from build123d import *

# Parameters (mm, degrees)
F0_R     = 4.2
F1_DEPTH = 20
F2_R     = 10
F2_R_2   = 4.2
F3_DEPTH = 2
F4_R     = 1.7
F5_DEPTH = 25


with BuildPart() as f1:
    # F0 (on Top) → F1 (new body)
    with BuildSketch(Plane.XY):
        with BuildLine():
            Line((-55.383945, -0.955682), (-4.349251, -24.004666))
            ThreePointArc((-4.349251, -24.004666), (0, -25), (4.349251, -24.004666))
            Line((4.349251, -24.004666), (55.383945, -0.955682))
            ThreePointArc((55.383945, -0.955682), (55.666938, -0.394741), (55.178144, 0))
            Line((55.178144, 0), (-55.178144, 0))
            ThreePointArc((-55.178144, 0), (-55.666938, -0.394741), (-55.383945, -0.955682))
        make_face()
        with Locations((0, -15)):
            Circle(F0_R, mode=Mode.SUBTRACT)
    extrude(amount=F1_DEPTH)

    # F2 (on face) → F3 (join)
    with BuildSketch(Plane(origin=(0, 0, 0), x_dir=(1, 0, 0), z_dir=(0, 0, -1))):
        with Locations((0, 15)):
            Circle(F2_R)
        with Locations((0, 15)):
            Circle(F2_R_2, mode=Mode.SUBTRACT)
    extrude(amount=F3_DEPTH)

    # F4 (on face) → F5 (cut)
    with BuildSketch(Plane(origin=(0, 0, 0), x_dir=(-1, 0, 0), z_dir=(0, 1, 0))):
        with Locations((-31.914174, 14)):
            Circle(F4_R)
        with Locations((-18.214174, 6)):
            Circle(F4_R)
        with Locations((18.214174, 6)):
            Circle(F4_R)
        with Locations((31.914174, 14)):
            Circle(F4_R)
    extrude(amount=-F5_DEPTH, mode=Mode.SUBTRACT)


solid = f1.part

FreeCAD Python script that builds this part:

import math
import FreeCAD as App
import Part
import Sketcher
Q = App.Units.Quantity

doc = App.newDocument("Part")
body = doc.addObject("PartDesign::Body", "Body")

# Sketch on XY plane
sketch1 = body.newObject("Sketcher::SketchObject", "Sketch")
sketch1.AttachmentSupport = (doc.getObject("XY_Plane"), [""])
sketch1.MapMode = "FlatFace"
sketch1.addGeometry(Part.LineSegment(App.Vector(-55.4, -1, 0), App.Vector(-4.3, -24, 0)), False)
sketch1.addGeometry(Part.ArcOfCircle(Part.Circle(App.Vector(0, -15, 0), App.Vector(0, 0, 1), 10), math.radians(-116), math.radians(-64)), False)
sketch1.addGeometry(Part.LineSegment(App.Vector(4.3, -24, 0), App.Vector(55.4, -1, 0)), False)
sketch1.addGeometry(Part.ArcOfCircle(Part.Circle(App.Vector(55.2, -0.5, 0), App.Vector(0, 0, 1), 0.5), math.radians(-66), math.radians(90)), False)
sketch1.addGeometry(Part.LineSegment(App.Vector(55.2, 0, 0), App.Vector(-55.2, 0, 0)), False)
sketch1.addGeometry(Part.ArcOfCircle(Part.Circle(App.Vector(-55.2, -0.5, 0), App.Vector(0, 0, 1), 0.5), math.radians(90), math.radians(246)), False)
sketch1.addGeometry(Part.Circle(App.Vector(0, -15, 0), App.Vector(0, 0, 1), 4.2), False)
sketch1.addConstraint(Sketcher.Constraint("Coincident", 0, 2, 1, 1))
sketch1.addConstraint(Sketcher.Constraint("Coincident", 1, 2, 2, 1))
sketch1.addConstraint(Sketcher.Constraint("Coincident", 2, 2, 3, 1))
sketch1.addConstraint(Sketcher.Constraint("Coincident", 3, 2, 4, 1))
sketch1.addConstraint(Sketcher.Constraint("Coincident", 4, 2, 5, 1))
sketch1.addConstraint(Sketcher.Constraint("Coincident", 5, 2, 0, 1))
sketch1.addConstraint(Sketcher.Constraint("Horizontal", 4))
sketch1.addConstraint(Sketcher.Constraint("Coincident", 6, 3, 1, 3))
sketch1.addConstraint(Sketcher.Constraint("Equal", 3, 5))
sketch1.addConstraint(Sketcher.Constraint("Symmetric", 3, 2, 4, 2, -1, 1))
sketch1.addConstraint(Sketcher.Constraint("Symmetric", 0, 2, 1, 2, -2))
sketch1.addConstraint(Sketcher.Constraint("Symmetric", 2, 2, 5, 2, -2))
sketch1.addConstraint(Sketcher.Constraint("Vertical", 5, 3, 4, 2))
sketch1.addConstraint(Sketcher.Constraint("Diameter", 6, Q("8.4 mm")))
sketch1.addConstraint(Sketcher.Constraint("Radius", 3, Q("0.5 mm")))
sketch1.addConstraint(Sketcher.Constraint("DistanceY", 6, 3, -1, 1, Q("15 mm")))
sketch1.addConstraint(Sketcher.Constraint("Radius", 1, Q("9.999997 mm")))
sketch1.addConstraint(Sketcher.Constraint("DistanceX", 4, 2, 4, 1, Q("110.356288 mm")))
sketch1.addConstraint(Sketcher.Constraint("DistanceX", 0, 2, 1, 2, Q("8.698502 mm")))
sketch1.addConstraint(Sketcher.Constraint("DistanceX", 3, 2, 2, 2, Q("0.205801 mm")))
pad1 = body.newObject("PartDesign::Pad", "Pad")
pad1.Profile = sketch1
pad1.Length = 20

# Sketch on XY plane
sketch2 = body.newObject("Sketcher::SketchObject", "Sketch001")
sketch2.AttachmentSupport = (doc.getObject("XY_Plane"), [""])
sketch2.MapMode = "FlatFace"
sketch2.addGeometry(Part.Circle(App.Vector(0, -15, 0), App.Vector(0, 0, 1), 10), False)
sketch2.addGeometry(Part.Circle(App.Vector(0, -15, 0), App.Vector(0, 0, 1), 4.2), False)
sketch2.addConstraint(Sketcher.Constraint("Coincident", 1, 3, 0, 3))
sketch2.addConstraint(Sketcher.Constraint("PointOnObject", 0, 3, -2))
sketch2.addConstraint(Sketcher.Constraint("Diameter", 0, Q("20 mm")))
sketch2.addConstraint(Sketcher.Constraint("Diameter", 1, Q("8.4 mm")))
sketch2.addConstraint(Sketcher.Constraint("DistanceY", 0, 3, -1, 1, Q("15 mm")))
pad2 = body.newObject("PartDesign::Pad", "Pad001")
pad2.Profile = sketch2
pad2.Length = 2
pad2.Reversed = True

# Sketch on XZ plane
sketch3 = body.newObject("Sketcher::SketchObject", "Sketch002")
sketch3.AttachmentSupport = (doc.getObject("XZ_Plane"), [""])
sketch3.MapMode = "FlatFace"
sketch3.addGeometry(Part.Circle(App.Vector(31.9, 14, 0), App.Vector(0, 0, 1), 1.7), False)
sketch3.addGeometry(Part.Circle(App.Vector(18.2, 6, 0), App.Vector(0, 0, 1), 1.7), False)
sketch3.addGeometry(Part.Circle(App.Vector(-18.2, 6, 0), App.Vector(0, 0, 1), 1.7), False)
sketch3.addGeometry(Part.Circle(App.Vector(-31.9, 14, 0), App.Vector(0, 0, 1), 1.7), False)
sketch3.addConstraint(Sketcher.Constraint("Equal", 0, 1))
sketch3.addConstraint(Sketcher.Constraint("Equal", 1, 2))
sketch3.addConstraint(Sketcher.Constraint("Equal", 2, 3))
sketch3.addConstraint(Sketcher.Constraint("Symmetric", 1, 3, 2, 3, -2))
sketch3.addConstraint(Sketcher.Constraint("Symmetric", 0, 3, 3, 3, -2))
sketch3.addConstraint(Sketcher.Constraint("Diameter", 0, Q("3.4 mm")))
sketch3.addConstraint(Sketcher.Constraint("DistanceY", -1, 1, 0, 3, Q("14 mm")))
sketch3.addConstraint(Sketcher.Constraint("DistanceY", -1, 1, 1, 3, Q("6 mm")))
sketch3.addConstraint(Sketcher.Constraint("DistanceX", 1, 3, 0, 3, Q("13.7 mm")))
sketch3.addConstraint(Sketcher.Constraint("DistanceX", 2, 3, 0, 3, Q("50.128348 mm")))
pocket1 = body.newObject("PartDesign::Pocket", "Pocket")
pocket1.Profile = sketch3
pocket1.Length = 25
pocket1.Reversed = True

doc.recompute()
